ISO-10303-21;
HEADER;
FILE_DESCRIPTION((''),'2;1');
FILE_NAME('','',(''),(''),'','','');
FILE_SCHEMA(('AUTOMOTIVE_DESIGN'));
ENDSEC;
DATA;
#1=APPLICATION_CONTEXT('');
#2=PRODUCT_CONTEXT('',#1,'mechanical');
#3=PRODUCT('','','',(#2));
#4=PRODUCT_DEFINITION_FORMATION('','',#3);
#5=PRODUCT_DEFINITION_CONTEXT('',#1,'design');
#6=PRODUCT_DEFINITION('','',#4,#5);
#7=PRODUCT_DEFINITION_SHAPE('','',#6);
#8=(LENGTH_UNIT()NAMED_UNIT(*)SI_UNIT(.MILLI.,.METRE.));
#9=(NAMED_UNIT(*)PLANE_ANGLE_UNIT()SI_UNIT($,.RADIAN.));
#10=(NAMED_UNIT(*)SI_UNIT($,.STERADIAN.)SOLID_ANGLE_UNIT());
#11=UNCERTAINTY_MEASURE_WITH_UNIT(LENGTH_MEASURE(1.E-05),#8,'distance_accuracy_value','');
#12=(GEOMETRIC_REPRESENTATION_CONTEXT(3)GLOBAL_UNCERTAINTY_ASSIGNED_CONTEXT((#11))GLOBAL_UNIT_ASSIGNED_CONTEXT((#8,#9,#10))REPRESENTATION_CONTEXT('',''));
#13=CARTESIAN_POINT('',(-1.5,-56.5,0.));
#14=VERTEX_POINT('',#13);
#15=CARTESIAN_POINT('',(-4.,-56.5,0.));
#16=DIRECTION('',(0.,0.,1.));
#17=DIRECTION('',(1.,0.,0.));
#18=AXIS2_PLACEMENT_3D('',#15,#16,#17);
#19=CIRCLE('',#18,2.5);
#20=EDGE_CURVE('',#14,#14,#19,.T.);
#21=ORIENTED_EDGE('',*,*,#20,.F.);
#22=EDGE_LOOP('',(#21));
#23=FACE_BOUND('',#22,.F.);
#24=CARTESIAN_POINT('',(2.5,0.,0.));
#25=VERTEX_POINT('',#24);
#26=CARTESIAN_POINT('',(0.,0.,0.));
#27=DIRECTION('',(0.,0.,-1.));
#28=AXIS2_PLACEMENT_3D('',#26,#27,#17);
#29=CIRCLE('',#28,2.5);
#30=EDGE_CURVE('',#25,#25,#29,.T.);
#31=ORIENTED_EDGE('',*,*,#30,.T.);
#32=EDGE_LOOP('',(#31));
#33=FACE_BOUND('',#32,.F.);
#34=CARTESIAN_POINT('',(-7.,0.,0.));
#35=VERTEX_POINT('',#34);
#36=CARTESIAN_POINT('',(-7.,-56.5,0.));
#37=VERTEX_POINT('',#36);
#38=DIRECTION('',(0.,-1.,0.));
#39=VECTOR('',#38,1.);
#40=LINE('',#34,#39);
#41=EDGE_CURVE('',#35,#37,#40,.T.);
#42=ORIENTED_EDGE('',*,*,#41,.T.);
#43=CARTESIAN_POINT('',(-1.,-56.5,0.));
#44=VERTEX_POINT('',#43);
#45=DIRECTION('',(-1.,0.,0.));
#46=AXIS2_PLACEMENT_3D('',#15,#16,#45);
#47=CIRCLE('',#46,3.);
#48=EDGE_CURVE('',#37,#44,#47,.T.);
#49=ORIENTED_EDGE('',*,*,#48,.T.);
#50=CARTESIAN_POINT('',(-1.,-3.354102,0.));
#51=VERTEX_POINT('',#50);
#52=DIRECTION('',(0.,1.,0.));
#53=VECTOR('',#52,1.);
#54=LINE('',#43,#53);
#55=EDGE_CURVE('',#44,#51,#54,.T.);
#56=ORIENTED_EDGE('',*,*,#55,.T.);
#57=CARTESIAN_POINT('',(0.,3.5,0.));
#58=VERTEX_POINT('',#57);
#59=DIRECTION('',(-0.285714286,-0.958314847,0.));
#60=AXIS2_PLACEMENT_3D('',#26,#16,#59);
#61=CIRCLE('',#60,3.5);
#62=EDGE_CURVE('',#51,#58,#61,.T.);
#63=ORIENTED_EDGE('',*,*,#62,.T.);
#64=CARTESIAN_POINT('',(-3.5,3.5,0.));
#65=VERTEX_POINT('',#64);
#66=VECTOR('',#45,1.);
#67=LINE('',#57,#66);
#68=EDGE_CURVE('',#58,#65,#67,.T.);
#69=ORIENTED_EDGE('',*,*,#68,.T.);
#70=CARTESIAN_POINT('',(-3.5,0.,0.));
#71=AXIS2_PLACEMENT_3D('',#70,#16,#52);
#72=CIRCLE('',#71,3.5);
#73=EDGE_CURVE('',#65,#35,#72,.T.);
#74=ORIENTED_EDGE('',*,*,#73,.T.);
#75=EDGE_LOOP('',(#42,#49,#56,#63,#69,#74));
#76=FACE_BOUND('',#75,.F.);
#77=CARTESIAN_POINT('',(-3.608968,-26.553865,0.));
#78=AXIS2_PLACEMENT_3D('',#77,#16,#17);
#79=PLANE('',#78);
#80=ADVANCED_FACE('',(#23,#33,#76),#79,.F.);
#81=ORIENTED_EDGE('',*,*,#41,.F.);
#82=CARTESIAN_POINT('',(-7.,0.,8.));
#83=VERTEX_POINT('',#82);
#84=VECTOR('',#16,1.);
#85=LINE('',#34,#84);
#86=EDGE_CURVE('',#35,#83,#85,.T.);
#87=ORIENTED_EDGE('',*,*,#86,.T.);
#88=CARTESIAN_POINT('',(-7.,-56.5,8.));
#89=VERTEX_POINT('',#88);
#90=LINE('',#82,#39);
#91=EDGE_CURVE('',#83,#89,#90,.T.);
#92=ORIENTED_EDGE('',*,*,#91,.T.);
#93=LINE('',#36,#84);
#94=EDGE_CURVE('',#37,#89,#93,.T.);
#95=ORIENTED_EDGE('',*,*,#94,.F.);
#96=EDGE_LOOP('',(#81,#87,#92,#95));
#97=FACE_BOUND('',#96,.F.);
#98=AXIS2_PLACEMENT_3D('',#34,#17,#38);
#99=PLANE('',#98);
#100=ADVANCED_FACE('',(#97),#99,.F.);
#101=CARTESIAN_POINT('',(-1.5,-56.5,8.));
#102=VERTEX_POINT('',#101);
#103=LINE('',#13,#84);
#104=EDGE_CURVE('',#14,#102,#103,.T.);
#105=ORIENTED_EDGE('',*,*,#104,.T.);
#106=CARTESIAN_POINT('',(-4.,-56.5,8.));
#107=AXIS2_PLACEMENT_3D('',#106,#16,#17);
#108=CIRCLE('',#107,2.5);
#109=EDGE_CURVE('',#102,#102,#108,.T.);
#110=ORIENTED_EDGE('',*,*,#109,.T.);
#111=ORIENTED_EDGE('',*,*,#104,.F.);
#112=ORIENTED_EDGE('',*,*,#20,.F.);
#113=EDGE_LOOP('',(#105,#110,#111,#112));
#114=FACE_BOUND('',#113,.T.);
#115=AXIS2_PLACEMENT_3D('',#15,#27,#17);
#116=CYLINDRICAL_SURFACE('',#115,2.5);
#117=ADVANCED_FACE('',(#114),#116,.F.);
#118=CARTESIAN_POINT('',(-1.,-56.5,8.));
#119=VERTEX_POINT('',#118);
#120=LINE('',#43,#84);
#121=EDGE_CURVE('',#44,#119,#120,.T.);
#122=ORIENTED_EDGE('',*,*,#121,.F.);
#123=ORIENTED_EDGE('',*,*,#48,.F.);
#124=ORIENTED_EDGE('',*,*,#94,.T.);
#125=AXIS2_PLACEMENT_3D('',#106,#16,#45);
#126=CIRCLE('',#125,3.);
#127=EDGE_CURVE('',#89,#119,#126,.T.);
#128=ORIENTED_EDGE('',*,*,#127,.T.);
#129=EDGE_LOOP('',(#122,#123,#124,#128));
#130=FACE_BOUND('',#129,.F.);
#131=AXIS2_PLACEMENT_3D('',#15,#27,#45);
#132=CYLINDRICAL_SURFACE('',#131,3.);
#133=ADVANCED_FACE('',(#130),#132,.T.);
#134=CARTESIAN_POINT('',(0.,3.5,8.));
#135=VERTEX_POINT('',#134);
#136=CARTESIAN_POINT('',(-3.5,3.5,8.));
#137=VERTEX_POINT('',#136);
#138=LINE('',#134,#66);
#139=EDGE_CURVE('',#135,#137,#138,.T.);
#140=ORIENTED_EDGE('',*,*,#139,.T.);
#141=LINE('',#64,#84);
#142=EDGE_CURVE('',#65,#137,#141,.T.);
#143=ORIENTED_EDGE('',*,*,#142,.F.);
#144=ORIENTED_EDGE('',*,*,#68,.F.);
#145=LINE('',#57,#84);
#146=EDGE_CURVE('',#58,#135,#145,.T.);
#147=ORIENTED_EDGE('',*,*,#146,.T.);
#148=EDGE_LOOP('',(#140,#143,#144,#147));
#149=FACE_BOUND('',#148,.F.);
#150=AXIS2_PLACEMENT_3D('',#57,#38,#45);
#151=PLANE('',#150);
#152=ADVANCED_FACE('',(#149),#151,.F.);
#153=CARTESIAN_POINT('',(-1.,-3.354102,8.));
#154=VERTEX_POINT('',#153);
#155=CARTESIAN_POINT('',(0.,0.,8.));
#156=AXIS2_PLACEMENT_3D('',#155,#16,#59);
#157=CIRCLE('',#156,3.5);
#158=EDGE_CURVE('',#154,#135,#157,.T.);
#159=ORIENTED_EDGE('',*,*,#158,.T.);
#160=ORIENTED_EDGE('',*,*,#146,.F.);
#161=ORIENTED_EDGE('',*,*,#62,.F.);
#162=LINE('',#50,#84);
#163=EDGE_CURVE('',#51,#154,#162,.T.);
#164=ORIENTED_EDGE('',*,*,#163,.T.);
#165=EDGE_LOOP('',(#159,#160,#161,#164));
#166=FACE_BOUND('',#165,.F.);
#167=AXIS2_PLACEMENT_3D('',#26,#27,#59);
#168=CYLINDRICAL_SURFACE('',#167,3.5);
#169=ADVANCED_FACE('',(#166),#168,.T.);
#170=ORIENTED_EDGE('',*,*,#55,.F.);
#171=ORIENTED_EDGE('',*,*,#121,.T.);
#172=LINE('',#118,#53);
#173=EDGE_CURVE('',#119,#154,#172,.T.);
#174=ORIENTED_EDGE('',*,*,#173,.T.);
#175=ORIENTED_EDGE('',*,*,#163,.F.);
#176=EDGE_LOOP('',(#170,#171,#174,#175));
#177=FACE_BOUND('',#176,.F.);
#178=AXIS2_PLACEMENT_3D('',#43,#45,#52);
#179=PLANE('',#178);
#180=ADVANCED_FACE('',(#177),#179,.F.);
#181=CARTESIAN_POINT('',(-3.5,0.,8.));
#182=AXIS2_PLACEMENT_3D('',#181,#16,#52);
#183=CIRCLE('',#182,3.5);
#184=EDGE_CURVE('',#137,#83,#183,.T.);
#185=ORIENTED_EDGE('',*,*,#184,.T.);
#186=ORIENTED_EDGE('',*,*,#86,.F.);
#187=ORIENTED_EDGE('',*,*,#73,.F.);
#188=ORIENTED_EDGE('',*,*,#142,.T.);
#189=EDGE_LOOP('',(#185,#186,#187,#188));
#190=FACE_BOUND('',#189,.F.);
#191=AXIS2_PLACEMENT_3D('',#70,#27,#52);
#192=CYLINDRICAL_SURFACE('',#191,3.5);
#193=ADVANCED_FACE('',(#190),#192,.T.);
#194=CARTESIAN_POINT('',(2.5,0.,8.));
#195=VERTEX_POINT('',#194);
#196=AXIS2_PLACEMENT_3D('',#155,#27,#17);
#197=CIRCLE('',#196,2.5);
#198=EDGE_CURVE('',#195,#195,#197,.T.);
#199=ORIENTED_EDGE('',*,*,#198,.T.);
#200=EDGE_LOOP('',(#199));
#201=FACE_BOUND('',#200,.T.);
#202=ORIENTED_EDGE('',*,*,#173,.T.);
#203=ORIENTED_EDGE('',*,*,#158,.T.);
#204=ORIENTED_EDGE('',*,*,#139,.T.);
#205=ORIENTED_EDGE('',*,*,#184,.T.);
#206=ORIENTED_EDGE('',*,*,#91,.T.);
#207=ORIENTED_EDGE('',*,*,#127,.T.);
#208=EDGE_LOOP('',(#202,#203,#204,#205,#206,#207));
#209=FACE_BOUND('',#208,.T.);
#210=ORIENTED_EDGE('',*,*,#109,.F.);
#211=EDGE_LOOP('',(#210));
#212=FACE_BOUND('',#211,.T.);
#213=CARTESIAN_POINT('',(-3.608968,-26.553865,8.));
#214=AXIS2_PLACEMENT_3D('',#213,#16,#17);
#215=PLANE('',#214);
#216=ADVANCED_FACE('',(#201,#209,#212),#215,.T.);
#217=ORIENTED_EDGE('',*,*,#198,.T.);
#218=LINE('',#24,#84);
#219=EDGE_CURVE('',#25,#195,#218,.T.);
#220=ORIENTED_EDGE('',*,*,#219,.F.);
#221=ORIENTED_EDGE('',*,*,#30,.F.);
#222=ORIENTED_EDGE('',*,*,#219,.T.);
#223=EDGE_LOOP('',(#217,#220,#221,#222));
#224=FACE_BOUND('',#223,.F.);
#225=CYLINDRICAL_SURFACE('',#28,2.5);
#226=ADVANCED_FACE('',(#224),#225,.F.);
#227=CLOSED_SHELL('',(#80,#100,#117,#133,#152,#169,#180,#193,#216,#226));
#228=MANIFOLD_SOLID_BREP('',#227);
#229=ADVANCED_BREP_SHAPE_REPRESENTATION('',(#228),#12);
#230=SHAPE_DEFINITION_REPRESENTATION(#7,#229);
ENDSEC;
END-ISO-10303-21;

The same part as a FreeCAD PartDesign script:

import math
import FreeCAD as App
import Part
import Sketcher

V = App.Vector
Q = App.Units.Quantity

doc = App.newDocument("Part")
params = doc.addObject("Spreadsheet::Sheet", "Params")
for row, (alias, value) in enumerate([
    ("sketch1_diameter", "5 mm"),
    ("sketch1_radius", "3 mm"),
    ("sketch1_radius2", "3.5 mm"),
    ("sketch1_width", "3.5 mm"),
    ("sketch1_height", "56.5 mm"),
    ("pad1_length", "8 mm"),
], start=1):
    params.set(f"A{row}", alias)
    params.set(f"B{row}", "=" + value)
    params.setAlias(f"B{row}", alias)

body = doc.addObject("PartDesign::Body", "Body")

sketch1 = body.newObject("Sketcher::SketchObject", "Sketch")
sketch1.AttachmentSupport = (doc.getObject("XY_Plane"), [""])
sketch1.MapMode = "FlatFace"
sketch1.addGeometry([
    Part.ArcOfCircle(Part.Circle(V(-3.5, 0, 0), V(0, 0, 1), 3.5), math.radians(90), math.radians(180)),
    Part.LineSegment(V(-7, 0, 0), V(-7, -56.5, 0)),
    Part.ArcOfCircle(Part.Circle(V(-4, -56.5, 0), V(0, 0, 1), 3), math.radians(180), math.radians(360)),
    Part.LineSegment(V(-1, -56.5, 0), V(-1, -3.354102, 0)),
    Part.ArcOfCircle(Part.Circle(V(0, 0, 0), V(0, 0, 1), 3.5), math.radians(-106.60155), math.radians(90)),
    Part.LineSegment(V(0, 3.5, 0), V(-3.5, 3.5, 0)),
    Part.Circle(V(-4, -56.5, 0), V(0, 0, 1), 2.5),
    Part.Circle(V(0, 0, 0), V(0, 0, 1), 2.5),
], False)
sketch1.addConstraint([
    Sketcher.Constraint("Tangent", 0, 2, 1, 1),
    Sketcher.Constraint("Tangent", 1, 2, 2, 1),
    Sketcher.Constraint("Tangent", 2, 2, 3, 1),
    Sketcher.Constraint("Coincident", 3, 2, 4, 1),
    Sketcher.Constraint("Tangent", 4, 2, 5, 1),
    Sketcher.Constraint("Tangent", 5, 2, 0, 1),
    Sketcher.Constraint("Vertical", 1),
    Sketcher.Constraint("Vertical", 3),
    Sketcher.Constraint("Horizontal", 5),
    Sketcher.Constraint("Coincident", 4, 3, -1, 1),
    Sketcher.Constraint("Coincident", 7, 3, -1, 1),
    Sketcher.Constraint("Coincident", 6, 3, 2, 3),
    Sketcher.Constraint("Equal", 0, 4),
    Sketcher.Constraint("Equal", 6, 7),
    Sketcher.Constraint("Diameter", 6, Q("5 mm")),
    Sketcher.Constraint("Radius", 2, Q("3 mm")),
    Sketcher.Constraint("Radius", 0, Q("3.5 mm")),
    Sketcher.Constraint("DistanceX", 5, 2, 5, 1, Q("3.5 mm")),
    Sketcher.Constraint("DistanceY", 1, 2, 1, 1, Q("56.5 mm")),
])
sketch1.setExpression("Constraints[14]", "Params.sketch1_diameter")
sketch1.setExpression("Constraints[15]", "Params.sketch1_radius")
sketch1.setExpression("Constraints[16]", "Params.sketch1_radius2")
sketch1.setExpression("Constraints[17]", "Params.sketch1_width")
sketch1.setExpression("Constraints[18]", "Params.sketch1_height")
pad1 = body.newObject("PartDesign::Pad", "Pad")
pad1.Profile = sketch1
pad1.setExpression("Length", "Params.pad1_length")

doc.recompute()
